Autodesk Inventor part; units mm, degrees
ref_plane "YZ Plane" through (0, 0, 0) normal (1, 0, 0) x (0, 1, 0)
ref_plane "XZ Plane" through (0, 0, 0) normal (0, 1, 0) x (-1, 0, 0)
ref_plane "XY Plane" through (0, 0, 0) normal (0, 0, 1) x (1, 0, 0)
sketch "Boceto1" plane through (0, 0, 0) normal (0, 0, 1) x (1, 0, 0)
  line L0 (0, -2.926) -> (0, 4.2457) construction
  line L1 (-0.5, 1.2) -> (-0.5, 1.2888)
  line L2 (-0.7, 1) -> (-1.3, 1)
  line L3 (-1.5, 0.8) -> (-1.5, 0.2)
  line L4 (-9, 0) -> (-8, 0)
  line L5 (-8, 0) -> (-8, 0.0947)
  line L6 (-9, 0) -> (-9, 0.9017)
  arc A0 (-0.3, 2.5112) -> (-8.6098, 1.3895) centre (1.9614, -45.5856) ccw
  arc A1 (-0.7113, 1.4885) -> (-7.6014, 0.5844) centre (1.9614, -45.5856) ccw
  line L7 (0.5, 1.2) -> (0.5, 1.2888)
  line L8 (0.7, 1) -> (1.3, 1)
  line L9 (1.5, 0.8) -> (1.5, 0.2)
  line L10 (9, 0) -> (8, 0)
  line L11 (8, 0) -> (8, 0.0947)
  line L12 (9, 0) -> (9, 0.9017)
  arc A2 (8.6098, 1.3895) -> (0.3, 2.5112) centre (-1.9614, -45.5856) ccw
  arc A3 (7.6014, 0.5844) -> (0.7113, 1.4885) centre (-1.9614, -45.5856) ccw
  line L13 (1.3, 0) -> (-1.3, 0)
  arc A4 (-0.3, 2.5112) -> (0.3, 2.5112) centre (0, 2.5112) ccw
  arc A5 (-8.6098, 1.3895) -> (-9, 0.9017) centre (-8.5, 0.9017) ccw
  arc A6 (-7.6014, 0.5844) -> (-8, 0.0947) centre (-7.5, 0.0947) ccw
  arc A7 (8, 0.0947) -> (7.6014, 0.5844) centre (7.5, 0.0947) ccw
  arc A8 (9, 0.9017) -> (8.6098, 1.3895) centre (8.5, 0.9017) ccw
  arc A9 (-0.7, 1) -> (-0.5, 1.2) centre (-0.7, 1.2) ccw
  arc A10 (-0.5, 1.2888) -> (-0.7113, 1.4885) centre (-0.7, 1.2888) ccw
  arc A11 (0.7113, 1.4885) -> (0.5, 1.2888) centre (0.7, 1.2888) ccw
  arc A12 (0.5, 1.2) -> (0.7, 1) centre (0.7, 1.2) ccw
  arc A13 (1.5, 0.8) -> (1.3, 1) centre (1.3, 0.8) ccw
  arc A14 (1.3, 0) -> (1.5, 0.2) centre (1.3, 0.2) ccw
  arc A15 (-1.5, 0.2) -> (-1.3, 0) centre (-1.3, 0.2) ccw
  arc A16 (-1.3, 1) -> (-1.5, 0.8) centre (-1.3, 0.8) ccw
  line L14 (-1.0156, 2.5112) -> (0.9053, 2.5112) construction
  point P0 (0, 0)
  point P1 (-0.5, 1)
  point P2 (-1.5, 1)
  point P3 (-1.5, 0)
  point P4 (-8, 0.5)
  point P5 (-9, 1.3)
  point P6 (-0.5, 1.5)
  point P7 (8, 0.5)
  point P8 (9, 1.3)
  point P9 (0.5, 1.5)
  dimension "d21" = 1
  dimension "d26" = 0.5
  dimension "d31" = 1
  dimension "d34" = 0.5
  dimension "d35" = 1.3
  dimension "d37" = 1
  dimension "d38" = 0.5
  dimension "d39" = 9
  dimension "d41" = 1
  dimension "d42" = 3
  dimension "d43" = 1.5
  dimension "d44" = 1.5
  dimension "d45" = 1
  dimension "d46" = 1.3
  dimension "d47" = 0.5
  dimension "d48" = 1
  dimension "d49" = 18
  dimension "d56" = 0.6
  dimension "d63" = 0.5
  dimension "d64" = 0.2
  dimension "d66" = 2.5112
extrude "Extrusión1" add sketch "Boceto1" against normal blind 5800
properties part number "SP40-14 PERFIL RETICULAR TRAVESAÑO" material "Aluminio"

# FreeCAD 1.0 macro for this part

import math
import FreeCAD as App
import Part
import Sketcher

V = App.Vector

doc = App.newDocument("Part")
body = doc.addObject("PartDesign::Body", "Body")

sketch1 = doc.addObject("Sketcher::SketchObject", "Sketch")
body.addObject(sketch1)
sketch1.AttachmentSupport = (doc.XY_Plane, [""])
sketch1.MapMode = "FlatFace"
sketch1.addGeometry(Part.LineSegment(V(-0.5, 1.29, 0), V(-0.5, 1.2, 0)), False)
sketch1.addGeometry(Part.ArcOfCircle(Part.Circle(V(-0.7, 1.2, 0), V(0, 0, 1), 0.2), math.radians(-90), math.radians(0)), False)
sketch1.addGeometry(Part.LineSegment(V(-0.7, 1, 0), V(-1.3, 1, 0)), False)
sketch1.addGeometry(Part.ArcOfCircle(Part.Circle(V(-1.3, 0.8, 0), V(0, 0, 1), 0.2), math.radians(90), math.radians(180)), False)
sketch1.addGeometry(Part.LineSegment(V(-1.5, 0.8, 0), V(-1.5, 0.2, 0)), False)
sketch1.addGeometry(Part.ArcOfCircle(Part.Circle(V(-1.3, 0.2, 0), V(0, 0, 1), 0.2), math.radians(180), math.radians(270)), False)
sketch1.addGeometry(Part.LineSegment(V(-1.3, 0, 0), V(1.3, 0, 0)), False)
sketch1.addGeometry(Part.ArcOfCircle(Part.Circle(V(1.3, 0.2, 0), V(0, 0, 1), 0.2), math.radians(-90), math.radians(0)), False)
sketch1.addGeometry(Part.LineSegment(V(1.5, 0.2, 0), V(1.5, 0.8, 0)), False)
sketch1.addGeometry(Part.ArcOfCircle(Part.Circle(V(1.3, 0.8, 0), V(0, 0, 1), 0.2), math.radians(0), math.radians(90)), False)
sketch1.addGeometry(Part.LineSegment(V(1.3, 1, 0), V(0.7, 1, 0)), False)
sketch1.addGeometry(Part.ArcOfCircle(Part.Circle(V(0.7, 1.2, 0), V(0, 0, 1), 0.2), math.radians(180), math.radians(270)), False)
sketch1.addGeometry(Part.LineSegment(V(0.5, 1.2, 0), V(0.5, 1.29, 0)), False)
sketch1.addGeometry(Part.ArcOfCircle(Part.Circle(V(0.7, 1.29, 0), V(0, 0, 1), 0.2), math.radians(87), math.radians(180)), False)
sketch1.addGeometry(Part.ArcOfCircle(Part.Circle(V(-1.96, -45.58, 0), V(0, 0, 1), 47.15), math.radians(78.3), math.radians(86.75)), False)
sketch1.addGeometry(Part.ArcOfCircle(Part.Circle(V(7.5, 0.09, 0), V(0, 0, 1), 0.5), math.radians(0), math.radians(78)), False)
sketch1.addGeometry(Part.LineSegment(V(8, 0.09, 0), V(8, 0, 0)), False)
sketch1.addGeometry(Part.LineSegment(V(8, 0, 0), V(9, 0, 0)), False)
sketch1.addGeometry(Part.LineSegment(V(9, 0, 0), V(9, 0.9, 0)), False)
sketch1.addGeometry(Part.ArcOfCircle(Part.Circle(V(8.5, 0.9, 0), V(0, 0, 1), 0.5), math.radians(0), math.radians(77)), False)
sketch1.addGeometry(Part.ArcOfCircle(Part.Circle(V(-1.96, -45.59, 0), V(0, 0, 1), 48.16), math.radians(77.32), math.radians(87.31)), False)
sketch1.addGeometry(Part.ArcOfCircle(Part.Circle(V(0, 2.51, 0), V(0, 0, 1), 0.3), math.radians(180), math.radians(360)), False)
sketch1.addGeometry(Part.ArcOfCircle(Part.Circle(V(1.96, -45.58, 0), V(0, 0, 1), 48.14), math.radians(92.69), math.radians(102.68)), False)
sketch1.addGeometry(Part.ArcOfCircle(Part.Circle(V(-8.5, 0.9, 0), V(0, 0, 1), 0.5), math.radians(103), math.radians(180)), False)
sketch1.addGeometry(Part.LineSegment(V(-9, 0.9, 0), V(-9, 0, 0)), False)
sketch1.addGeometry(Part.LineSegment(V(-9, 0, 0), V(-8, 0, 0)), False)
sketch1.addGeometry(Part.LineSegment(V(-8, 0, 0), V(-8, 0.09, 0)), False)
sketch1.addGeometry(Part.ArcOfCircle(Part.Circle(V(-7.5, 0.09, 0), V(0, 0, 1), 0.5), math.radians(102), math.radians(180)), False)
sketch1.addGeometry(Part.ArcOfCircle(Part.Circle(V(1.96, -45.59, 0), V(0, 0, 1), 47.15), math.radians(93.25), math.radians(101.7)), False)
sketch1.addGeometry(Part.ArcOfCircle(Part.Circle(V(-0.7, 1.29, 0), V(0, 0, 1), 0.2), math.radians(0), math.radians(93)), False)
sketch1.addConstraint(Sketcher.Constraint("Tangent", 0, 2, 1, 2))
sketch1.addConstraint(Sketcher.Constraint("Tangent", 1, 1, 2, 1))
sketch1.addConstraint(Sketcher.Constraint("Tangent", 2, 2, 3, 1))
sketch1.addConstraint(Sketcher.Constraint("Tangent", 3, 2, 4, 1))
sketch1.addConstraint(Sketcher.Constraint("Tangent", 4, 2, 5, 1))
sketch1.addConstraint(Sketcher.Constraint("Tangent", 5, 2, 6, 1))
sketch1.addConstraint(Sketcher.Constraint("Tangent", 6, 2, 7, 1))
sketch1.addConstraint(Sketcher.Constraint("Tangent", 7, 2, 8, 1))
sketch1.addConstraint(Sketcher.Constraint("Tangent", 8, 2, 9, 1))
sketch1.addConstraint(Sketcher.Constraint("Tangent", 9, 2, 10, 1))
sketch1.addConstraint(Sketcher.Constraint("Tangent", 10, 2, 11, 2))
sketch1.addConstraint(Sketcher.Constraint("Tangent", 11, 1, 12, 1))
sketch1.addConstraint(Sketcher.Constraint("Tangent", 12, 2, 13, 2))
sketch1.addConstraint(Sketcher.Constraint("Tangent", 13, 1, 14, 2))
sketch1.addConstraint(Sketcher.Constraint("Tangent", 14, 1, 15, 2))
sketch1.addConstraint(Sketcher.Constraint("Tangent", 15, 1, 16, 1))
sketch1.addConstraint(Sketcher.Constraint("Coincident", 16, 2, 17, 1))
sketch1.addConstraint(Sketcher.Constraint("Coincident", 17, 2, 18, 1))
sketch1.addConstraint(Sketcher.Constraint("Tangent", 18, 2, 19, 1))
sketch1.addConstraint(Sketcher.Constraint("Tangent", 19, 2, 20, 1))
sketch1.addConstraint(Sketcher.Constraint("Coincident", 20, 2, 21, 2))
sketch1.addConstraint(Sketcher.Constraint("Coincident", 21, 1, 22, 1))
sketch1.addConstraint(Sketcher.Constraint("Tangent", 22, 2, 23, 1))
sketch1.addConstraint(Sketcher.Constraint("Tangent", 23, 2, 24, 1))
sketch1.addConstraint(Sketcher.Constraint("Coincident", 24, 2, 25, 1))
sketch1.addConstraint(Sketcher.Constraint("Coincident", 25, 2, 26, 1))
sketch1.addConstraint(Sketcher.Constraint("Tangent", 26, 2, 27, 2))
sketch1.addConstraint(Sketcher.Constraint("Tangent", 27, 1, 28, 2))
sketch1.addConstraint(Sketcher.Constraint("Tangent", 28, 1, 29, 2))
sketch1.addConstraint(Sketcher.Constraint("Tangent", 29, 1, 0, 1))
sketch1.addConstraint(Sketcher.Constraint("Vertical", 0))
sketch1.addConstraint(Sketcher.Constraint("Horizontal", 2))
sketch1.addConstraint(Sketcher.Constraint("Vertical", 4))
sketch1.addConstraint(Sketcher.Constraint("Horizontal", 6))
sketch1.addConstraint(Sketcher.Constraint("Vertical", 8))
sketch1.addConstraint(Sketcher.Constraint("Horizontal", 10))
sketch1.addConstraint(Sketcher.Constraint("Vertical", 12))
sketch1.addConstraint(Sketcher.Constraint("Vertical", 16))
sketch1.addConstraint(Sketcher.Constraint("Horizontal", 17))
sketch1.addConstraint(Sketcher.Constraint("Vertical", 18))
sketch1.addConstraint(Sketcher.Constraint("Vertical", 24))
sketch1.addConstraint(Sketcher.Constraint("Horizontal", 25))
sketch1.addConstraint(Sketcher.Constraint("Vertical", 26))
sketch1.addConstraint(Sketcher.Constraint("Equal", 1, 3))
sketch1.addConstraint(Sketcher.Constraint("Equal", 3, 5))
sketch1.addConstraint(Sketcher.Constraint("Equal", 5, 7))
sketch1.addConstraint(Sketcher.Constraint("Equal", 7, 9))
sketch1.addConstraint(Sketcher.Constraint("Equal", 9, 11))
sketch1.addConstraint(Sketcher.Constraint("Equal", 11, 13))
sketch1.addConstraint(Sketcher.Constraint("Equal", 15, 19))
sketch1.addConstraint(Sketcher.Constraint("Equal", 19, 23))
sketch1.addConstraint(Sketcher.Constraint("Equal", 23, 27))
sketch1.addConstraint(Sketcher.Constraint("Equal", 13, 29))
sketch1.addConstraint(Sketcher.Constraint("Symmetric", 5, 2, 6, 2, -1, 1))
sketch1.addConstraint(Sketcher.Constraint("Symmetric", 17, 2, 24, 2, -1, 1))
sketch1.addConstraint(Sketcher.Constraint("Symmetric", 1, 3, 11, 3, -2))
sketch1.addConstraint(Sketcher.Constraint("Symmetric", 15, 3, 27, 3, -2))
sketch1.addConstraint(Sketcher.Constraint("Symmetric", 20, 2, 21, 1, -2))
sketch1.addConstraint(Sketcher.Constraint("PointOnObject", 16, 2, -1))
sketch1.addConstraint(Sketcher.Constraint("Horizontal", 19, 3, 23, 3))
sketch1.addConstraint(Sketcher.Constraint("Horizontal", 13, 3, 29, 3))
sketch1.addConstraint(Sketcher.Constraint("Horizontal", 21, 3, 20, 2))
sketch1.addConstraint(Sketcher.Constraint("Equal", 10, 4))
sketch1.addConstraint(Sketcher.Constraint("Radius", 1, 0.2))
sketch1.addConstraint(Sketcher.Constraint("Radius", 15, 0.5))
sketch1.addConstraint(Sketcher.Constraint("Radius", 21, 0.3))
sketch1.addConstraint(Sketcher.Constraint("DistanceX", 17, 1, 17, 2, 1.0))
sketch1.addConstraint(Sketcher.Constraint("DistanceX", 2, 2, 2, 1, 0.6))
sketch1.addConstraint(Sketcher.Constraint("DistanceX", -1, 1, 17, 2, 9.0))
sketch1.addConstraint(Sketcher.Constraint("DistanceX", 3, 3, -1, 1, 1.3))
sketch1.addConstraint(Sketcher.Constraint("Radius", 22, 48.142))
sketch1.addConstraint(Sketcher.Constraint("DistanceY", -1, 1, 21, 3, 2.5112))
sketch1.addConstraint(Sketcher.Constraint("Radius", 14, 47.1464))
sketch1.addConstraint(Sketcher.Constraint("Radius", 20, 48.1578))
sketch1.addConstraint(Sketcher.Constraint("Radius", 28, 47.1535))
sketch1.addConstraint(Sketcher.Constraint("DistanceY", 0, 2, 0, 1, 0.0888))
sketch1.addConstraint(Sketcher.Constraint("DistanceY", 16, 2, 16, 1, 0.0947))
sketch1.addConstraint(Sketcher.Constraint("DistanceY", 18, 1, 18, 2, 0.9017))
pad1 = doc.addObject("PartDesign::Pad", "Pad")
body.addObject(pad1)
pad1.Profile = sketch1
pad1.Length = 5800
pad1.Reversed = True

doc.recompute()
